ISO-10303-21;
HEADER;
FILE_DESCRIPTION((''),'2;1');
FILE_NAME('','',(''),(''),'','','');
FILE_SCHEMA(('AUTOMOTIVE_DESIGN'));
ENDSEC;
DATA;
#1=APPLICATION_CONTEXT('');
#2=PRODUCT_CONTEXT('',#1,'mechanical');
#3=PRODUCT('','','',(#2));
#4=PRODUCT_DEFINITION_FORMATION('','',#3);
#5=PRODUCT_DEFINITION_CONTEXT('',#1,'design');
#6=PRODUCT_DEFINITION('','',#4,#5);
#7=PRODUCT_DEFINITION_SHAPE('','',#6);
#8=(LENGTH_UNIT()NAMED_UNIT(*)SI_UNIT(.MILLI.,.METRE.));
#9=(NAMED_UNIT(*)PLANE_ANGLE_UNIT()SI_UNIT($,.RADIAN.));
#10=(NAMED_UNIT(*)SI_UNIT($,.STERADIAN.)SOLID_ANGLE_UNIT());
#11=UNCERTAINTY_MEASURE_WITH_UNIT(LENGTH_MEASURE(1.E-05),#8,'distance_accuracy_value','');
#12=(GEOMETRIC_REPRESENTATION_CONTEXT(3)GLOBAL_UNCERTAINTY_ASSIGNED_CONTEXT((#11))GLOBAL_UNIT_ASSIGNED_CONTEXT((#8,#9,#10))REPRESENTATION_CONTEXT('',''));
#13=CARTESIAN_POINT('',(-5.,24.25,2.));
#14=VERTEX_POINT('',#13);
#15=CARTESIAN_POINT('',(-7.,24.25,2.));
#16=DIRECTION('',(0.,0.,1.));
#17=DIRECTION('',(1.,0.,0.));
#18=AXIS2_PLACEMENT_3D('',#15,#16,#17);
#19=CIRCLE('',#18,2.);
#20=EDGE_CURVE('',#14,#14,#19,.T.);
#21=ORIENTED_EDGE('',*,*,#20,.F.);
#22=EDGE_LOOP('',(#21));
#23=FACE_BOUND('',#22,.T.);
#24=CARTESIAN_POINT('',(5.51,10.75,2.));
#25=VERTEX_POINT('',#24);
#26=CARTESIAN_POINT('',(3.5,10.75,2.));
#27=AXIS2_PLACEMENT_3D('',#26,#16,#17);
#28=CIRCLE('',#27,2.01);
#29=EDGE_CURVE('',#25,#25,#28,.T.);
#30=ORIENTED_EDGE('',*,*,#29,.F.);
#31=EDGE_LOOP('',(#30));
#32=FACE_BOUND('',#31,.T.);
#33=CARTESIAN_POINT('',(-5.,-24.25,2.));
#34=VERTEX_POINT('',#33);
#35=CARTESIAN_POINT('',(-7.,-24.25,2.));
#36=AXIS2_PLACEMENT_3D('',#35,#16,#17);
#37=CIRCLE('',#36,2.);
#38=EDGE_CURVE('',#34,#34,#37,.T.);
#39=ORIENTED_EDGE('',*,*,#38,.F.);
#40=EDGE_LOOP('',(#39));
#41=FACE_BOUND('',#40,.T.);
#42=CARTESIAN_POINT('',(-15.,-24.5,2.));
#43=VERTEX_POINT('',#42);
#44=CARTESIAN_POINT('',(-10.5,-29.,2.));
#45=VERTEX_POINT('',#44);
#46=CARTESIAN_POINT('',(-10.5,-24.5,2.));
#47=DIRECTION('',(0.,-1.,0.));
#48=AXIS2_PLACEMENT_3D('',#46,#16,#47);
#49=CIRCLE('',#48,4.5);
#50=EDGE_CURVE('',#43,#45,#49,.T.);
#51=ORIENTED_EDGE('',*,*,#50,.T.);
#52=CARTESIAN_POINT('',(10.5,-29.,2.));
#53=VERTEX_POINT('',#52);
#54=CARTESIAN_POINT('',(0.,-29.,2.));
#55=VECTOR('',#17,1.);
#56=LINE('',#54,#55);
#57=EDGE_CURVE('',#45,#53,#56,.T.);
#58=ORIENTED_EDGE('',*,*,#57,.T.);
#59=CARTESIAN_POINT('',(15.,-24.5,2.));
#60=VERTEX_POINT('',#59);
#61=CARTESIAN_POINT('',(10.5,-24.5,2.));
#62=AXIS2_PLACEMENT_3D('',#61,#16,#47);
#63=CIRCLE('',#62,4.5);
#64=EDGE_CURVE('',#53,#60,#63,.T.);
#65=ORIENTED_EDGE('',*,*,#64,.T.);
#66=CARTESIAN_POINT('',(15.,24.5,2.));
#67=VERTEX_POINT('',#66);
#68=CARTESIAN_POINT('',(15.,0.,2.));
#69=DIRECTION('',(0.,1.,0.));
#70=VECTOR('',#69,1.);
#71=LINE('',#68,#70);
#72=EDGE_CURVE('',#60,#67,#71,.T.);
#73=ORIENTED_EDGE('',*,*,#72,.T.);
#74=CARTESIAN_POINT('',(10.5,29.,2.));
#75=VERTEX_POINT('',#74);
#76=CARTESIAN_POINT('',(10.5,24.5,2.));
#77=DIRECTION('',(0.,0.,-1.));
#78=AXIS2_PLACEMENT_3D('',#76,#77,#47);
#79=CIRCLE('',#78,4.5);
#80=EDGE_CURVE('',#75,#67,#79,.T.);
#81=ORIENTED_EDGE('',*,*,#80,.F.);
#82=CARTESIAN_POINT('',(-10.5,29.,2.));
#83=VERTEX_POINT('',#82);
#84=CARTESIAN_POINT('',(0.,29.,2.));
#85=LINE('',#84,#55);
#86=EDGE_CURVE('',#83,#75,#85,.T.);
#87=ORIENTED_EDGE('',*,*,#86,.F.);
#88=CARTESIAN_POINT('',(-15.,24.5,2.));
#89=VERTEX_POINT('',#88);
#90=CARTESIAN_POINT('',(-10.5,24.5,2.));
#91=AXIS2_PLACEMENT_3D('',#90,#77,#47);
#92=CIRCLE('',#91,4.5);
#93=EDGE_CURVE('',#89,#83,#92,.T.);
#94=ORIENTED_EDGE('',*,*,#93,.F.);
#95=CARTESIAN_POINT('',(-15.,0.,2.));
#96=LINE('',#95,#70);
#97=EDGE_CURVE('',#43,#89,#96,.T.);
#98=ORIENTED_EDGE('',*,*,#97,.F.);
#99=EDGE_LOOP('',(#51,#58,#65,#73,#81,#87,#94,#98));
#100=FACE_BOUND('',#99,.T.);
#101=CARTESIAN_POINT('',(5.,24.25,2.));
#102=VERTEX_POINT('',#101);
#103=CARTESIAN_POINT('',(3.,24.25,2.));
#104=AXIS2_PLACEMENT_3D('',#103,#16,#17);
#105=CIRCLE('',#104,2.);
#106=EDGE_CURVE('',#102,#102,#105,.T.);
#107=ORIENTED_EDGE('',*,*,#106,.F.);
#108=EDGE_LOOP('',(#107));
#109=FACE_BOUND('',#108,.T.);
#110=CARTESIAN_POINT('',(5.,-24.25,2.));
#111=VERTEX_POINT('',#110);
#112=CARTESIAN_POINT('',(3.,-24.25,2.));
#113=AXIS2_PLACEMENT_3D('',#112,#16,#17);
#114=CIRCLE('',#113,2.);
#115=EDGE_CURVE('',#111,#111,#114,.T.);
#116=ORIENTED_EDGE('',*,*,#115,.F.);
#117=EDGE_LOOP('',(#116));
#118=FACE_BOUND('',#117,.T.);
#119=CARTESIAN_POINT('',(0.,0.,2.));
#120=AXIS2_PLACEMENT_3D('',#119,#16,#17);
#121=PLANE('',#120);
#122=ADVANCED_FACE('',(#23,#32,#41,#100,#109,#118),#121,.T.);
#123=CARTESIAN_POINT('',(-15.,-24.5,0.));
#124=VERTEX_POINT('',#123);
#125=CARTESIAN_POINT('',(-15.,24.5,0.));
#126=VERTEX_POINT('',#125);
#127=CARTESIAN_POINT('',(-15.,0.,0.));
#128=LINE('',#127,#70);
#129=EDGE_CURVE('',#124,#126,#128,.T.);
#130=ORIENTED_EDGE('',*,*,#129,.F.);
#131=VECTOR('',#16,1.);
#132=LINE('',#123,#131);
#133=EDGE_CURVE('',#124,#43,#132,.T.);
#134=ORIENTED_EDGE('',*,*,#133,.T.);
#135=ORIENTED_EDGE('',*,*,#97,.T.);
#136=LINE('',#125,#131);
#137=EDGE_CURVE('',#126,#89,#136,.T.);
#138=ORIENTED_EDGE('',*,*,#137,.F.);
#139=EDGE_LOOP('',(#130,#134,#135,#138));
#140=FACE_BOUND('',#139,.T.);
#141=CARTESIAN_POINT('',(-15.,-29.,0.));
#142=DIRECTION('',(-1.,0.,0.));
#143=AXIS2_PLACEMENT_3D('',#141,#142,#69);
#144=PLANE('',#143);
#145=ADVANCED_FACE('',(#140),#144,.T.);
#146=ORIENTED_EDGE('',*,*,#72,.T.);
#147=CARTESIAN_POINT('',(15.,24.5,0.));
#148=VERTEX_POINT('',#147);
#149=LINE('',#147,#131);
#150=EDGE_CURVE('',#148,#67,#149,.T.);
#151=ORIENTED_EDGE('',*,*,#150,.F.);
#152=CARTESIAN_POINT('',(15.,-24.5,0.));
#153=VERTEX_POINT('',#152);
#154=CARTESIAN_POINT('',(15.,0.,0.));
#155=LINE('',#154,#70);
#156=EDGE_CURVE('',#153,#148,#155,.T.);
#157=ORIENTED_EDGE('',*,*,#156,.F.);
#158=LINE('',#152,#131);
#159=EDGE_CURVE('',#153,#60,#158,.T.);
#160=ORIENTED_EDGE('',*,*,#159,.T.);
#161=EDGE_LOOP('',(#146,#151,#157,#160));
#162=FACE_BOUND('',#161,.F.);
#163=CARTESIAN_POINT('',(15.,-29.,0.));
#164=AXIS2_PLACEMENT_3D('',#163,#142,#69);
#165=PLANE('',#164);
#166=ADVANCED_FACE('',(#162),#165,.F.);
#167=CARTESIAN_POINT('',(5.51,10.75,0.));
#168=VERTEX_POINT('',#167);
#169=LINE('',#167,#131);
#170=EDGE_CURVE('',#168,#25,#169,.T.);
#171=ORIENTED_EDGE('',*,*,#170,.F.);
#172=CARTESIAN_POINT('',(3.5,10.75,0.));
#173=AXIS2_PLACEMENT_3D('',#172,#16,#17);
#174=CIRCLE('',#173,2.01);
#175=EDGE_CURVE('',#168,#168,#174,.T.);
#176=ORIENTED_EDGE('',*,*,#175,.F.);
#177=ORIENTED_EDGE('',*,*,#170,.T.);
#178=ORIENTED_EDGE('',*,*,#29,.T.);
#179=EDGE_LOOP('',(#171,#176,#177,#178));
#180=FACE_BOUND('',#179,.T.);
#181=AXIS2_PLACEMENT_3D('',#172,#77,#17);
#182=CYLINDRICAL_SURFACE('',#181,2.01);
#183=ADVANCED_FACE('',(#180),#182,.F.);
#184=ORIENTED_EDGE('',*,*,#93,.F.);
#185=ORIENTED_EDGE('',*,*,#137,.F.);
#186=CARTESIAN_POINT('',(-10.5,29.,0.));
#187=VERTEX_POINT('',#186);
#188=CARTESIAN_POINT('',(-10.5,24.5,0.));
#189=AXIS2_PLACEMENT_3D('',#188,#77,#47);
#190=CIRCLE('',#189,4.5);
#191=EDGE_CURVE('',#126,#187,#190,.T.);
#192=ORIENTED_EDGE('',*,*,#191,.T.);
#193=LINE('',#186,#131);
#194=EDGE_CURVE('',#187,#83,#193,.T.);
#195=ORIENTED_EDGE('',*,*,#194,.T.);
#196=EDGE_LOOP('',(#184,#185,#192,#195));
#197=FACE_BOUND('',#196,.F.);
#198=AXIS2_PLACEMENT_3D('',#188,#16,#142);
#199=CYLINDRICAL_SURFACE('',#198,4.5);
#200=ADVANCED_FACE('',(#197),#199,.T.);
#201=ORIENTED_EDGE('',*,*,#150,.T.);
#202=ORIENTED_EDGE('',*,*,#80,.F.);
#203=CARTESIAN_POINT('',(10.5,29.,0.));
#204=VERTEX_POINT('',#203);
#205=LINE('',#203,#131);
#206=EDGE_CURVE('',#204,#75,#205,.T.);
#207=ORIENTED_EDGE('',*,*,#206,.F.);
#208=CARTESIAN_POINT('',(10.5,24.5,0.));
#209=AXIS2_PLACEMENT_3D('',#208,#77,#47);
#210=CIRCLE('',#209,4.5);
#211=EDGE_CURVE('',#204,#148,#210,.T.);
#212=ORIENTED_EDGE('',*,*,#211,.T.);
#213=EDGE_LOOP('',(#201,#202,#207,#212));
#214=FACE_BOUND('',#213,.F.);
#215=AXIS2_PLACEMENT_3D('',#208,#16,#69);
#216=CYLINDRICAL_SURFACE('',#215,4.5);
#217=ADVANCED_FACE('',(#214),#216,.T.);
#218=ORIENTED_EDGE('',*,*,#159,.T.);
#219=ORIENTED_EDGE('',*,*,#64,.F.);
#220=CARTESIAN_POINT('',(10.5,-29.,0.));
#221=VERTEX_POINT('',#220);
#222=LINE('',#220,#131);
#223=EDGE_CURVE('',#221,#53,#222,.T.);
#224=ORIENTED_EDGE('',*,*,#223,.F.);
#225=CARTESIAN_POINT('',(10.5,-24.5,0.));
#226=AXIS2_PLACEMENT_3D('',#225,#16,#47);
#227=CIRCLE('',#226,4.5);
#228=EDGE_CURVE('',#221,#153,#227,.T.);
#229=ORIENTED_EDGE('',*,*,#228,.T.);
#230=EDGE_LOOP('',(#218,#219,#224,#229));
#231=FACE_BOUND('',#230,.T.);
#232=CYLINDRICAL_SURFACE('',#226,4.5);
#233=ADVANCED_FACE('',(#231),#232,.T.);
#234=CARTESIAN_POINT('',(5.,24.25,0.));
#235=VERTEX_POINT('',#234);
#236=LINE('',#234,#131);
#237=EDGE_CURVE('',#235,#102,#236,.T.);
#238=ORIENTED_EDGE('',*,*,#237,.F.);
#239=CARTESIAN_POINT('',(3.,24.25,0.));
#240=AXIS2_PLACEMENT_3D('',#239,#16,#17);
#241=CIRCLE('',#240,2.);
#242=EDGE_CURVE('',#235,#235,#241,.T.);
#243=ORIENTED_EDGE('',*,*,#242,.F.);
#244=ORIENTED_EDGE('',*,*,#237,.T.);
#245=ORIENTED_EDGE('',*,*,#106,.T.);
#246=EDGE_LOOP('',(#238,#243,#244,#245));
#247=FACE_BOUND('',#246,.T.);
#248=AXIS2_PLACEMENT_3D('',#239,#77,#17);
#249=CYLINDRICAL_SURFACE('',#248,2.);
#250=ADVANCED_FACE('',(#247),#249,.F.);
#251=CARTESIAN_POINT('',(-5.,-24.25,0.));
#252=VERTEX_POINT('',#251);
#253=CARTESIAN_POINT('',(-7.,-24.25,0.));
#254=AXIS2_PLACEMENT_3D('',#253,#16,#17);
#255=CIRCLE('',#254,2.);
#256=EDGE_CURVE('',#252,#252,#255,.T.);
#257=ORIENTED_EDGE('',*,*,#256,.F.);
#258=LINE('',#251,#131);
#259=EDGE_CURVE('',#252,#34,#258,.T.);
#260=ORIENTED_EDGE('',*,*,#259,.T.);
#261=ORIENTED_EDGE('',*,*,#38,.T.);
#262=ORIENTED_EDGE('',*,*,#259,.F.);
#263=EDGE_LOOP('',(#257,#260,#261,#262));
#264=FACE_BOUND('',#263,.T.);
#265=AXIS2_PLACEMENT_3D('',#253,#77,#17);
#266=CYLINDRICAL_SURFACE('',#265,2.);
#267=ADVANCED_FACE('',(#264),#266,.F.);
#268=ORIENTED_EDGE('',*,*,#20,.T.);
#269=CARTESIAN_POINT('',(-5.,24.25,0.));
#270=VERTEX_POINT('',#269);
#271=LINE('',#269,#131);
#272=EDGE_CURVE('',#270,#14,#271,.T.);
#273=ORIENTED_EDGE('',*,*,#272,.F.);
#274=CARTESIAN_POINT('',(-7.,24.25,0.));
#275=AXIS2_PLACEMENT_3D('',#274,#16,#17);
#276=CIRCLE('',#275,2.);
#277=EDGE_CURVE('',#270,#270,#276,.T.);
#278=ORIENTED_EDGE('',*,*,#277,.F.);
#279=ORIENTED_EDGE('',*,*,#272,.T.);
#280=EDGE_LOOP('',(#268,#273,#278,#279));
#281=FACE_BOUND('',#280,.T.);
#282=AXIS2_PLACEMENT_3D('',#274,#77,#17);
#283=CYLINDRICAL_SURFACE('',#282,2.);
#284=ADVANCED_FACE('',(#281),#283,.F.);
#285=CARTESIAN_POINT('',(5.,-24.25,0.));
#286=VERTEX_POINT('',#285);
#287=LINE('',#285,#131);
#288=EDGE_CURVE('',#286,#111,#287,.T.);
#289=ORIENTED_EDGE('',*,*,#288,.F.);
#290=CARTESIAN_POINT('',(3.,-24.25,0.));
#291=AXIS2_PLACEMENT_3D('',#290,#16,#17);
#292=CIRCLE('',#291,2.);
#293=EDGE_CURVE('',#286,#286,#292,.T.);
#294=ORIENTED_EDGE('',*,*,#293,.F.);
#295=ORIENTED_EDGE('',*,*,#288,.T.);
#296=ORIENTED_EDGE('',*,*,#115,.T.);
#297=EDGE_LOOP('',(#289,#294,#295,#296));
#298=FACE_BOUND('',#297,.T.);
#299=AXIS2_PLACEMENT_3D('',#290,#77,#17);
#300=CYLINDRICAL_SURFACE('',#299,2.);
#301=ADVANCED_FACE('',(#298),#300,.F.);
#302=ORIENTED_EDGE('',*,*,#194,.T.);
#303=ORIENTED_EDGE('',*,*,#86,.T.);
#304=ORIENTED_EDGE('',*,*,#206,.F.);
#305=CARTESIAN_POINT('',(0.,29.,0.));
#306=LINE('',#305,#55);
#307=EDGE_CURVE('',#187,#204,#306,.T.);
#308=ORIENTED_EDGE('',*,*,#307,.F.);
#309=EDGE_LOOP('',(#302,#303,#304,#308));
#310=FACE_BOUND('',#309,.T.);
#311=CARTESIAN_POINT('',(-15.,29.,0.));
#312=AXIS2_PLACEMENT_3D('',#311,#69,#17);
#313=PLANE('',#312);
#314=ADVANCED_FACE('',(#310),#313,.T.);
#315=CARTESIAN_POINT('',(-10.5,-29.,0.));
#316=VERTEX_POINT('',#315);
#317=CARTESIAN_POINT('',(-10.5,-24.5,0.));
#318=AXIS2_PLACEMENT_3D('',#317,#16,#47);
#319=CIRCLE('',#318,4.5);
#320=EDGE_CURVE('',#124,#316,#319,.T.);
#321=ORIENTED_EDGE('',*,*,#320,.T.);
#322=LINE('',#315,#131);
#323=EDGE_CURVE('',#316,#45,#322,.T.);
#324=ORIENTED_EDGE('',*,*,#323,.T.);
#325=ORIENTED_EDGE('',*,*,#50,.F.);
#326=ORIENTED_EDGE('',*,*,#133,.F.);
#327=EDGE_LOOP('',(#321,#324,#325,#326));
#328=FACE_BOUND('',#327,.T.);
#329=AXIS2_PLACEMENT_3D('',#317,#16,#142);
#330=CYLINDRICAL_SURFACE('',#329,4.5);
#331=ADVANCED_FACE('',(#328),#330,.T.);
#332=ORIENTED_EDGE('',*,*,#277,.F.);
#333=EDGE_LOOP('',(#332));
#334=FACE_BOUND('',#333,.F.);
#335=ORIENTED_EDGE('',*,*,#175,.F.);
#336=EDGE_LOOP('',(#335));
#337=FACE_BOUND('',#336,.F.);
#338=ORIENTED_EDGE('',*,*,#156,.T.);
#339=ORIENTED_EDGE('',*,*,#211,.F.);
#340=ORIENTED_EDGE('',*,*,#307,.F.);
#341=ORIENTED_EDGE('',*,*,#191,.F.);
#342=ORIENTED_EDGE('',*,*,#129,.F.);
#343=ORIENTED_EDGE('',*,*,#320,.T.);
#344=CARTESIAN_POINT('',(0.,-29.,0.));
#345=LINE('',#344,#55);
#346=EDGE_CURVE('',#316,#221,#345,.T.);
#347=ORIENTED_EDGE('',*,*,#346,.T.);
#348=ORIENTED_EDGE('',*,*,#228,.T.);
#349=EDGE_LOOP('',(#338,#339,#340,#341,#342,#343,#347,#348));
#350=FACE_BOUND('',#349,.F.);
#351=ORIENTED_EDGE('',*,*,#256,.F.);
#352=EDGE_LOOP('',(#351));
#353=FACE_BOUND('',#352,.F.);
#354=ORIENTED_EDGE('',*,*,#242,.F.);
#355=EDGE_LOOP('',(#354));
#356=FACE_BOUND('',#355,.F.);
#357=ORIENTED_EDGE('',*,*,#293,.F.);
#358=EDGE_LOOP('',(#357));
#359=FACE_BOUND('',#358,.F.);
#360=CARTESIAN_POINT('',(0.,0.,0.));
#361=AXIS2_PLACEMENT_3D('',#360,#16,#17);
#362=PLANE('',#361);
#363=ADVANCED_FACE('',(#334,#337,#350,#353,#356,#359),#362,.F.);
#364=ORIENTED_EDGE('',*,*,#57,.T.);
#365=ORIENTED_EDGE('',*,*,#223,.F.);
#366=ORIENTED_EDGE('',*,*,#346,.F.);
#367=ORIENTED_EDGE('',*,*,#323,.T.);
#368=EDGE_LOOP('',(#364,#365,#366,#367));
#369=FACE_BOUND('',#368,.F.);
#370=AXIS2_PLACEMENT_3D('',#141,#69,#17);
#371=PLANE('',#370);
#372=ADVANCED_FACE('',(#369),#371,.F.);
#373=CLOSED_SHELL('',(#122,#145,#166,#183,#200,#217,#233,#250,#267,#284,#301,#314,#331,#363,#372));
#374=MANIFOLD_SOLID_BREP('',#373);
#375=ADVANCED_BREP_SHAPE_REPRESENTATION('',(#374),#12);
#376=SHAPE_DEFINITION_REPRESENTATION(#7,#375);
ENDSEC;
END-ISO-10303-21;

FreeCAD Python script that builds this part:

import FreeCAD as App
import Part
import Sketcher
from FreeCAD import Vector
Q = App.Units.Quantity


def edges_at(feature, points):
    """Names of the edges that pass closest to the given points."""
    edges = feature.Shape.Edges
    near = lambda p: min(range(len(edges)), key=lambda i: edges[i].distToShape(Part.Vertex(*p))[0])
    return sorted({f"Edge{near(p) + 1}" for p in points})

doc = App.newDocument("Part")
body = doc.addObject("PartDesign::Body", "Body")

sketch1 = body.newObject("Sketcher::SketchObject", "Sketch")
sketch1.AttachmentSupport = (doc.getObject("XY_Plane"), [""])
sketch1.MapMode = "FlatFace"
sketch1.addGeometry([
    Part.LineSegment(Vector(-15, 29, 0), Vector(-15, -29, 0)),
    Part.LineSegment(Vector(-15, -29, 0), Vector(15, -29, 0)),
    Part.LineSegment(Vector(15, -29, 0), Vector(15, 29, 0)),
    Part.LineSegment(Vector(15, 29, 0), Vector(-15, 29, 0)),
    Part.Circle(Vector(-7, -24.25, 0), Vector(0, 0, 1), 2),
    Part.Circle(Vector(3, -24.25, 0), Vector(0, 0, 1), 2),
    Part.Circle(Vector(-7, 24.25, 0), Vector(0, 0, 1), 2),
    Part.Circle(Vector(3.5, 10.75, 0), Vector(0, 0, 1), 2.01),
    Part.Circle(Vector(3, 24.25, 0), Vector(0, 0, 1), 2),
], False)
sketch1.addConstraint([
    Sketcher.Constraint("Coincident", 0, 2, 1, 1),
    Sketcher.Constraint("Coincident", 1, 2, 2, 1),
    Sketcher.Constraint("Coincident", 2, 2, 3, 1),
    Sketcher.Constraint("Coincident", 3, 2, 0, 1),
    Sketcher.Constraint("Vertical", 0),
    Sketcher.Constraint("Horizontal", 1),
    Sketcher.Constraint("Vertical", 2),
    Sketcher.Constraint("Horizontal", 3),
    Sketcher.Constraint("Equal", 4, 5),
    Sketcher.Constraint("Equal", 5, 6),
    Sketcher.Constraint("Equal", 6, 8),
    Sketcher.Constraint("Symmetric", 0, 2, 2, 2, -1, 1),
    Sketcher.Constraint("Symmetric", 4, 3, 6, 3, -1),
    Sketcher.Constraint("Symmetric", 5, 3, 8, 3, -1),
    Sketcher.Constraint("Horizontal", 4, 3, 5, 3),
    Sketcher.Constraint("Diameter", 4, Q("4 mm")),
    Sketcher.Constraint("Diameter", 7, Q("4.02 mm")),
    Sketcher.Constraint("DistanceX", 1, 1, 1, 2, Q("30 mm")),
    Sketcher.Constraint("DistanceY", 0, 2, 0, 1, Q("58 mm")),
    Sketcher.Constraint("DistanceX", 4, 3, -1, 1, Q("7 mm")),
    Sketcher.Constraint("DistanceX", -1, 1, 5, 3, Q("3 mm")),
    Sketcher.Constraint("DistanceY", 5, 3, 7, 3, Q("35 mm")),
    Sketcher.Constraint("DistanceX", -1, 1, 7, 3, Q("3.5 mm")),
    Sketcher.Constraint("DistanceY", 4, 3, 6, 3, Q("48.5 mm")),
])
pad1 = body.newObject("PartDesign::Pad", "Pad")
pad1.Profile = sketch1
pad1.Length = 2
doc.recompute()

fillet = body.newObject("PartDesign::Fillet", "Fillet")
fillet.Base = (pad1, edges_at(pad1, [
    (-15, 29, 1),
    (15, 29, 1),
    (15, -29, 1),
    (-15, -29, 1),
]))
fillet.Radius = 4.5

doc.recompute()
